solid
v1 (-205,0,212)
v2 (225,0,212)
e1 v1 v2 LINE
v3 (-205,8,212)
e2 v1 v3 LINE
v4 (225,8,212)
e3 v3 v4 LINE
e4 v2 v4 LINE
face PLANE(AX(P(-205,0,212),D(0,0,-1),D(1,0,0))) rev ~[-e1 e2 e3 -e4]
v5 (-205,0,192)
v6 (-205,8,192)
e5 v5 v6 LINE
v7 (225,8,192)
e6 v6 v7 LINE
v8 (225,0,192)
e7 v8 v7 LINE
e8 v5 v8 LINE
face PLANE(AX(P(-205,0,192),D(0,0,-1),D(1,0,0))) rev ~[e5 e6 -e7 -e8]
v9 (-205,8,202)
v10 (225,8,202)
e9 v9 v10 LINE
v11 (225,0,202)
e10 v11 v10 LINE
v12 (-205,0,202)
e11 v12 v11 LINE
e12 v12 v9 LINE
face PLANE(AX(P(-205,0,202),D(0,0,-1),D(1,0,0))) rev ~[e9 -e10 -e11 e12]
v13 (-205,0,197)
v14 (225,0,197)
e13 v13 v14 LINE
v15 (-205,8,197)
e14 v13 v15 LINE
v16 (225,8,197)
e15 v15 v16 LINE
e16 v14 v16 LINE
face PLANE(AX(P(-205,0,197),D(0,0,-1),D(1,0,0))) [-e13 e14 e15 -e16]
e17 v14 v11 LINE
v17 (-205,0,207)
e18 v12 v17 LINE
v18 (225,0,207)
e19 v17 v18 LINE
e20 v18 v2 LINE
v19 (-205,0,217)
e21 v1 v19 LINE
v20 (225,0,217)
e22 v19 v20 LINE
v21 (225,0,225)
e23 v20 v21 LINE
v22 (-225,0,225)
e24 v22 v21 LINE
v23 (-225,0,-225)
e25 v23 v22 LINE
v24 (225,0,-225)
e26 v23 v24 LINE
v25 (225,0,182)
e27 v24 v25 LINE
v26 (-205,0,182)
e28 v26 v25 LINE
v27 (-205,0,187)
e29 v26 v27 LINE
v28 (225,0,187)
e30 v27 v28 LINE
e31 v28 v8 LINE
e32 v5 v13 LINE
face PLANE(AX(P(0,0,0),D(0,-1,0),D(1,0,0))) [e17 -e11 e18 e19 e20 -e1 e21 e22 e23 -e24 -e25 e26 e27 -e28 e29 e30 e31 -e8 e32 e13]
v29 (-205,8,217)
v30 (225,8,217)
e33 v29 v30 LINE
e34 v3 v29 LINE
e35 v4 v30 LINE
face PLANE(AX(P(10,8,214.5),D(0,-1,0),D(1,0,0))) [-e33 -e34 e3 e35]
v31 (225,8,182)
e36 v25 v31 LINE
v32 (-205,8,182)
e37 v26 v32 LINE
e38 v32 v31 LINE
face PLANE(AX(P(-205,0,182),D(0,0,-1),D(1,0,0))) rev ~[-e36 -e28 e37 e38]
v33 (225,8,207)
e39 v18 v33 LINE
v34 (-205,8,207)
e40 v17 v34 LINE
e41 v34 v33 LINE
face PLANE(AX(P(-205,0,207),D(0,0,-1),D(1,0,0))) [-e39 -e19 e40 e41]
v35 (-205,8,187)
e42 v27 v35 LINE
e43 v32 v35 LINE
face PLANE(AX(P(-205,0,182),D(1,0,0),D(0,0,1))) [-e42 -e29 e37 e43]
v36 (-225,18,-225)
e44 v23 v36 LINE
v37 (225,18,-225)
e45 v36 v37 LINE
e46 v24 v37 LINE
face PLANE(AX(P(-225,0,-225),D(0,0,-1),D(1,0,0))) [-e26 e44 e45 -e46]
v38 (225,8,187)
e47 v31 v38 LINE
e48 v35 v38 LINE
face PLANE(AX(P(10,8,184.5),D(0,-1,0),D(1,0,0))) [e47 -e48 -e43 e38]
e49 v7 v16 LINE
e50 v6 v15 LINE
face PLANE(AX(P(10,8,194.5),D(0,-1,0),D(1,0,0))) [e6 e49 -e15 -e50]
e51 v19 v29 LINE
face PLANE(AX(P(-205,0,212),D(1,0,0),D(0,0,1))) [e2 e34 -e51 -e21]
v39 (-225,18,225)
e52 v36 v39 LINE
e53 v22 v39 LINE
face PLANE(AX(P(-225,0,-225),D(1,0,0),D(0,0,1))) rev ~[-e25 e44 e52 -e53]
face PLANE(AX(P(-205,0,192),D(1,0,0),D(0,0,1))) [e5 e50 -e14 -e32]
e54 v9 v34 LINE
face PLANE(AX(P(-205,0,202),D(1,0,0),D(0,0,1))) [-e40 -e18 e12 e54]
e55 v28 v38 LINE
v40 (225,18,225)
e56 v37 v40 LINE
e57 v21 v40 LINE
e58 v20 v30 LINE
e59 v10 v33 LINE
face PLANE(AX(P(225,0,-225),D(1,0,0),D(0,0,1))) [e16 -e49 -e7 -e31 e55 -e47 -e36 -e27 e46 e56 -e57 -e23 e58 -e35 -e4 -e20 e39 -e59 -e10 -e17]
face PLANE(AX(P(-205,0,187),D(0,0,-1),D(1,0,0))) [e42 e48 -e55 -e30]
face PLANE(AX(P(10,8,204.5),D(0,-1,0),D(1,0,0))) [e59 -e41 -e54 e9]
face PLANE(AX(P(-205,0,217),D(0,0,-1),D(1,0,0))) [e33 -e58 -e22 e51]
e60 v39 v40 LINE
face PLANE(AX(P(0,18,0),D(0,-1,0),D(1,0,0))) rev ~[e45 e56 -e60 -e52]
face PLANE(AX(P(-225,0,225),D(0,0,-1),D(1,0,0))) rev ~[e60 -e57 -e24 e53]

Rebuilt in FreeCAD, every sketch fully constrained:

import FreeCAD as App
import Part
import Sketcher

V = App.Vector
Q = App.Units.Quantity


def add_polygon(sketch, points):
    """Adds a closed chain of lines whose ends are joined by coincident constraints."""
    first, n = sketch.GeometryCount, len(points)
    for a, b in zip(points, points[1:] + points[:1]):
        sketch.addGeometry(Part.LineSegment(App.Vector(*a, 0), App.Vector(*b, 0)), False)
    for i in range(n):
        sketch.addConstraint(Sketcher.Constraint("Coincident", first + i, 2, first + (i + 1) % n, 1))

doc = App.newDocument("Part")
body = doc.addObject("PartDesign::Body", "Body")

sketch1 = body.newObject("Sketcher::SketchObject", "Sketch")
sketch1.AttachmentSupport = (doc.getObject("XZ_Plane"), [""])
sketch1.MapMode = "FlatFace"
add_polygon(sketch1, [(-225, 225), (-225, -225), (225, -225), (225, 225)])
sketch1.addConstraint(Sketcher.Constraint("Vertical", 0))
sketch1.addConstraint(Sketcher.Constraint("Horizontal", 1))
sketch1.addConstraint(Sketcher.Constraint("Vertical", 2))
sketch1.addConstraint(Sketcher.Constraint("Horizontal", 3))
sketch1.addConstraint(Sketcher.Constraint("Symmetric", 0, 2, 2, 2, -1, 1))
sketch1.addConstraint(Sketcher.Constraint("Equal", 3, 0))
sketch1.addConstraint(Sketcher.Constraint("DistanceX", 1, 1, 1, 2, Q("450 mm")))
pad1 = body.newObject("PartDesign::Pad", "Pad")
pad1.Profile = sketch1
pad1.Length = 18
pad1.Reversed = True

sketch2 = body.newObject("Sketcher::SketchObject", "Sketch001")
sketch2.AttachmentSupport = (doc.getObject("XZ_Plane"), [""])
sketch2.MapMode = "FlatFace"
add_polygon(sketch2, [(-205, 217), (-205, 212), (225, 212), (225, 217)])
add_polygon(sketch2, [(-205, 207), (-205, 202), (225, 202), (225, 207)])
add_polygon(sketch2, [(-205, 197), (-205, 192), (225, 192), (225, 197)])
add_polygon(sketch2, [(-205, 187), (-205, 182), (225, 182), (225, 187)])
sketch2.addConstraint(Sketcher.Constraint("Vertical", 0))
sketch2.addConstraint(Sketcher.Constraint("Horizontal", 1))
sketch2.addConstraint(Sketcher.Constraint("Vertical", 2))
sketch2.addConstraint(Sketcher.Constraint("Horizontal", 3))
sketch2.addConstraint(Sketcher.Constraint("Vertical", 4))
sketch2.addConstraint(Sketcher.Constraint("Horizontal", 5))
sketch2.addConstraint(Sketcher.Constraint("Vertical", 6))
sketch2.addConstraint(Sketcher.Constraint("Horizontal", 7))
sketch2.addConstraint(Sketcher.Constraint("Vertical", 8))
sketch2.addConstraint(Sketcher.Constraint("Horizontal", 9))
sketch2.addConstraint(Sketcher.Constraint("Vertical", 10))
sketch2.addConstraint(Sketcher.Constraint("Horizontal", 11))
sketch2.addConstraint(Sketcher.Constraint("Vertical", 12))
sketch2.addConstraint(Sketcher.Constraint("Horizontal", 13))
sketch2.addConstraint(Sketcher.Constraint("Vertical", 14))
sketch2.addConstraint(Sketcher.Constraint("Horizontal", 15))
sketch2.addConstraint(Sketcher.Constraint("Vertical", 3, 2, 4, 2))
sketch2.addConstraint(Sketcher.Constraint("Vertical", 2, 2, 5, 2))
sketch2.addConstraint(Sketcher.Constraint("Vertical", 7, 2, 8, 2))
sketch2.addConstraint(Sketcher.Constraint("Vertical", 6, 2, 9, 2))
sketch2.addConstraint(Sketcher.Constraint("Vertical", 11, 2, 12, 2))
sketch2.addConstraint(Sketcher.Constraint("Vertical", 10, 2, 13, 2))
sketch2.addConstraint(Sketcher.Constraint("Equal", 2, 4))
sketch2.addConstraint(Sketcher.Constraint("Equal", 6, 8))
sketch2.addConstraint(Sketcher.Constraint("Equal", 10, 12))
sketch2.addConstraint(Sketcher.Constraint("DistanceX", 1, 1, 1, 2, Q("430 mm")))
sketch2.addConstraint(Sketcher.Constraint("DistanceY", 0, 2, 0, 1, Q("5 mm")))
sketch2.addConstraint(Sketcher.Constraint("DistanceX", 0, 2, -1, 1, Q("205 mm")))
sketch2.addConstraint(Sketcher.Constraint("DistanceY", -1, 1, 0, 2, Q("212 mm")))
sketch2.addConstraint(Sketcher.Constraint("DistanceY", -1, 1, 4, 2, Q("202 mm")))
sketch2.addConstraint(Sketcher.Constraint("DistanceY", -1, 1, 8, 2, Q("192 mm")))
sketch2.addConstraint(Sketcher.Constraint("DistanceY", -1, 1, 12, 2, Q("182 mm")))
pocket1 = body.newObject("PartDesign::Pocket", "Pocket")
pocket1.Profile = sketch2
pocket1.Length = 8

doc.recompute()
